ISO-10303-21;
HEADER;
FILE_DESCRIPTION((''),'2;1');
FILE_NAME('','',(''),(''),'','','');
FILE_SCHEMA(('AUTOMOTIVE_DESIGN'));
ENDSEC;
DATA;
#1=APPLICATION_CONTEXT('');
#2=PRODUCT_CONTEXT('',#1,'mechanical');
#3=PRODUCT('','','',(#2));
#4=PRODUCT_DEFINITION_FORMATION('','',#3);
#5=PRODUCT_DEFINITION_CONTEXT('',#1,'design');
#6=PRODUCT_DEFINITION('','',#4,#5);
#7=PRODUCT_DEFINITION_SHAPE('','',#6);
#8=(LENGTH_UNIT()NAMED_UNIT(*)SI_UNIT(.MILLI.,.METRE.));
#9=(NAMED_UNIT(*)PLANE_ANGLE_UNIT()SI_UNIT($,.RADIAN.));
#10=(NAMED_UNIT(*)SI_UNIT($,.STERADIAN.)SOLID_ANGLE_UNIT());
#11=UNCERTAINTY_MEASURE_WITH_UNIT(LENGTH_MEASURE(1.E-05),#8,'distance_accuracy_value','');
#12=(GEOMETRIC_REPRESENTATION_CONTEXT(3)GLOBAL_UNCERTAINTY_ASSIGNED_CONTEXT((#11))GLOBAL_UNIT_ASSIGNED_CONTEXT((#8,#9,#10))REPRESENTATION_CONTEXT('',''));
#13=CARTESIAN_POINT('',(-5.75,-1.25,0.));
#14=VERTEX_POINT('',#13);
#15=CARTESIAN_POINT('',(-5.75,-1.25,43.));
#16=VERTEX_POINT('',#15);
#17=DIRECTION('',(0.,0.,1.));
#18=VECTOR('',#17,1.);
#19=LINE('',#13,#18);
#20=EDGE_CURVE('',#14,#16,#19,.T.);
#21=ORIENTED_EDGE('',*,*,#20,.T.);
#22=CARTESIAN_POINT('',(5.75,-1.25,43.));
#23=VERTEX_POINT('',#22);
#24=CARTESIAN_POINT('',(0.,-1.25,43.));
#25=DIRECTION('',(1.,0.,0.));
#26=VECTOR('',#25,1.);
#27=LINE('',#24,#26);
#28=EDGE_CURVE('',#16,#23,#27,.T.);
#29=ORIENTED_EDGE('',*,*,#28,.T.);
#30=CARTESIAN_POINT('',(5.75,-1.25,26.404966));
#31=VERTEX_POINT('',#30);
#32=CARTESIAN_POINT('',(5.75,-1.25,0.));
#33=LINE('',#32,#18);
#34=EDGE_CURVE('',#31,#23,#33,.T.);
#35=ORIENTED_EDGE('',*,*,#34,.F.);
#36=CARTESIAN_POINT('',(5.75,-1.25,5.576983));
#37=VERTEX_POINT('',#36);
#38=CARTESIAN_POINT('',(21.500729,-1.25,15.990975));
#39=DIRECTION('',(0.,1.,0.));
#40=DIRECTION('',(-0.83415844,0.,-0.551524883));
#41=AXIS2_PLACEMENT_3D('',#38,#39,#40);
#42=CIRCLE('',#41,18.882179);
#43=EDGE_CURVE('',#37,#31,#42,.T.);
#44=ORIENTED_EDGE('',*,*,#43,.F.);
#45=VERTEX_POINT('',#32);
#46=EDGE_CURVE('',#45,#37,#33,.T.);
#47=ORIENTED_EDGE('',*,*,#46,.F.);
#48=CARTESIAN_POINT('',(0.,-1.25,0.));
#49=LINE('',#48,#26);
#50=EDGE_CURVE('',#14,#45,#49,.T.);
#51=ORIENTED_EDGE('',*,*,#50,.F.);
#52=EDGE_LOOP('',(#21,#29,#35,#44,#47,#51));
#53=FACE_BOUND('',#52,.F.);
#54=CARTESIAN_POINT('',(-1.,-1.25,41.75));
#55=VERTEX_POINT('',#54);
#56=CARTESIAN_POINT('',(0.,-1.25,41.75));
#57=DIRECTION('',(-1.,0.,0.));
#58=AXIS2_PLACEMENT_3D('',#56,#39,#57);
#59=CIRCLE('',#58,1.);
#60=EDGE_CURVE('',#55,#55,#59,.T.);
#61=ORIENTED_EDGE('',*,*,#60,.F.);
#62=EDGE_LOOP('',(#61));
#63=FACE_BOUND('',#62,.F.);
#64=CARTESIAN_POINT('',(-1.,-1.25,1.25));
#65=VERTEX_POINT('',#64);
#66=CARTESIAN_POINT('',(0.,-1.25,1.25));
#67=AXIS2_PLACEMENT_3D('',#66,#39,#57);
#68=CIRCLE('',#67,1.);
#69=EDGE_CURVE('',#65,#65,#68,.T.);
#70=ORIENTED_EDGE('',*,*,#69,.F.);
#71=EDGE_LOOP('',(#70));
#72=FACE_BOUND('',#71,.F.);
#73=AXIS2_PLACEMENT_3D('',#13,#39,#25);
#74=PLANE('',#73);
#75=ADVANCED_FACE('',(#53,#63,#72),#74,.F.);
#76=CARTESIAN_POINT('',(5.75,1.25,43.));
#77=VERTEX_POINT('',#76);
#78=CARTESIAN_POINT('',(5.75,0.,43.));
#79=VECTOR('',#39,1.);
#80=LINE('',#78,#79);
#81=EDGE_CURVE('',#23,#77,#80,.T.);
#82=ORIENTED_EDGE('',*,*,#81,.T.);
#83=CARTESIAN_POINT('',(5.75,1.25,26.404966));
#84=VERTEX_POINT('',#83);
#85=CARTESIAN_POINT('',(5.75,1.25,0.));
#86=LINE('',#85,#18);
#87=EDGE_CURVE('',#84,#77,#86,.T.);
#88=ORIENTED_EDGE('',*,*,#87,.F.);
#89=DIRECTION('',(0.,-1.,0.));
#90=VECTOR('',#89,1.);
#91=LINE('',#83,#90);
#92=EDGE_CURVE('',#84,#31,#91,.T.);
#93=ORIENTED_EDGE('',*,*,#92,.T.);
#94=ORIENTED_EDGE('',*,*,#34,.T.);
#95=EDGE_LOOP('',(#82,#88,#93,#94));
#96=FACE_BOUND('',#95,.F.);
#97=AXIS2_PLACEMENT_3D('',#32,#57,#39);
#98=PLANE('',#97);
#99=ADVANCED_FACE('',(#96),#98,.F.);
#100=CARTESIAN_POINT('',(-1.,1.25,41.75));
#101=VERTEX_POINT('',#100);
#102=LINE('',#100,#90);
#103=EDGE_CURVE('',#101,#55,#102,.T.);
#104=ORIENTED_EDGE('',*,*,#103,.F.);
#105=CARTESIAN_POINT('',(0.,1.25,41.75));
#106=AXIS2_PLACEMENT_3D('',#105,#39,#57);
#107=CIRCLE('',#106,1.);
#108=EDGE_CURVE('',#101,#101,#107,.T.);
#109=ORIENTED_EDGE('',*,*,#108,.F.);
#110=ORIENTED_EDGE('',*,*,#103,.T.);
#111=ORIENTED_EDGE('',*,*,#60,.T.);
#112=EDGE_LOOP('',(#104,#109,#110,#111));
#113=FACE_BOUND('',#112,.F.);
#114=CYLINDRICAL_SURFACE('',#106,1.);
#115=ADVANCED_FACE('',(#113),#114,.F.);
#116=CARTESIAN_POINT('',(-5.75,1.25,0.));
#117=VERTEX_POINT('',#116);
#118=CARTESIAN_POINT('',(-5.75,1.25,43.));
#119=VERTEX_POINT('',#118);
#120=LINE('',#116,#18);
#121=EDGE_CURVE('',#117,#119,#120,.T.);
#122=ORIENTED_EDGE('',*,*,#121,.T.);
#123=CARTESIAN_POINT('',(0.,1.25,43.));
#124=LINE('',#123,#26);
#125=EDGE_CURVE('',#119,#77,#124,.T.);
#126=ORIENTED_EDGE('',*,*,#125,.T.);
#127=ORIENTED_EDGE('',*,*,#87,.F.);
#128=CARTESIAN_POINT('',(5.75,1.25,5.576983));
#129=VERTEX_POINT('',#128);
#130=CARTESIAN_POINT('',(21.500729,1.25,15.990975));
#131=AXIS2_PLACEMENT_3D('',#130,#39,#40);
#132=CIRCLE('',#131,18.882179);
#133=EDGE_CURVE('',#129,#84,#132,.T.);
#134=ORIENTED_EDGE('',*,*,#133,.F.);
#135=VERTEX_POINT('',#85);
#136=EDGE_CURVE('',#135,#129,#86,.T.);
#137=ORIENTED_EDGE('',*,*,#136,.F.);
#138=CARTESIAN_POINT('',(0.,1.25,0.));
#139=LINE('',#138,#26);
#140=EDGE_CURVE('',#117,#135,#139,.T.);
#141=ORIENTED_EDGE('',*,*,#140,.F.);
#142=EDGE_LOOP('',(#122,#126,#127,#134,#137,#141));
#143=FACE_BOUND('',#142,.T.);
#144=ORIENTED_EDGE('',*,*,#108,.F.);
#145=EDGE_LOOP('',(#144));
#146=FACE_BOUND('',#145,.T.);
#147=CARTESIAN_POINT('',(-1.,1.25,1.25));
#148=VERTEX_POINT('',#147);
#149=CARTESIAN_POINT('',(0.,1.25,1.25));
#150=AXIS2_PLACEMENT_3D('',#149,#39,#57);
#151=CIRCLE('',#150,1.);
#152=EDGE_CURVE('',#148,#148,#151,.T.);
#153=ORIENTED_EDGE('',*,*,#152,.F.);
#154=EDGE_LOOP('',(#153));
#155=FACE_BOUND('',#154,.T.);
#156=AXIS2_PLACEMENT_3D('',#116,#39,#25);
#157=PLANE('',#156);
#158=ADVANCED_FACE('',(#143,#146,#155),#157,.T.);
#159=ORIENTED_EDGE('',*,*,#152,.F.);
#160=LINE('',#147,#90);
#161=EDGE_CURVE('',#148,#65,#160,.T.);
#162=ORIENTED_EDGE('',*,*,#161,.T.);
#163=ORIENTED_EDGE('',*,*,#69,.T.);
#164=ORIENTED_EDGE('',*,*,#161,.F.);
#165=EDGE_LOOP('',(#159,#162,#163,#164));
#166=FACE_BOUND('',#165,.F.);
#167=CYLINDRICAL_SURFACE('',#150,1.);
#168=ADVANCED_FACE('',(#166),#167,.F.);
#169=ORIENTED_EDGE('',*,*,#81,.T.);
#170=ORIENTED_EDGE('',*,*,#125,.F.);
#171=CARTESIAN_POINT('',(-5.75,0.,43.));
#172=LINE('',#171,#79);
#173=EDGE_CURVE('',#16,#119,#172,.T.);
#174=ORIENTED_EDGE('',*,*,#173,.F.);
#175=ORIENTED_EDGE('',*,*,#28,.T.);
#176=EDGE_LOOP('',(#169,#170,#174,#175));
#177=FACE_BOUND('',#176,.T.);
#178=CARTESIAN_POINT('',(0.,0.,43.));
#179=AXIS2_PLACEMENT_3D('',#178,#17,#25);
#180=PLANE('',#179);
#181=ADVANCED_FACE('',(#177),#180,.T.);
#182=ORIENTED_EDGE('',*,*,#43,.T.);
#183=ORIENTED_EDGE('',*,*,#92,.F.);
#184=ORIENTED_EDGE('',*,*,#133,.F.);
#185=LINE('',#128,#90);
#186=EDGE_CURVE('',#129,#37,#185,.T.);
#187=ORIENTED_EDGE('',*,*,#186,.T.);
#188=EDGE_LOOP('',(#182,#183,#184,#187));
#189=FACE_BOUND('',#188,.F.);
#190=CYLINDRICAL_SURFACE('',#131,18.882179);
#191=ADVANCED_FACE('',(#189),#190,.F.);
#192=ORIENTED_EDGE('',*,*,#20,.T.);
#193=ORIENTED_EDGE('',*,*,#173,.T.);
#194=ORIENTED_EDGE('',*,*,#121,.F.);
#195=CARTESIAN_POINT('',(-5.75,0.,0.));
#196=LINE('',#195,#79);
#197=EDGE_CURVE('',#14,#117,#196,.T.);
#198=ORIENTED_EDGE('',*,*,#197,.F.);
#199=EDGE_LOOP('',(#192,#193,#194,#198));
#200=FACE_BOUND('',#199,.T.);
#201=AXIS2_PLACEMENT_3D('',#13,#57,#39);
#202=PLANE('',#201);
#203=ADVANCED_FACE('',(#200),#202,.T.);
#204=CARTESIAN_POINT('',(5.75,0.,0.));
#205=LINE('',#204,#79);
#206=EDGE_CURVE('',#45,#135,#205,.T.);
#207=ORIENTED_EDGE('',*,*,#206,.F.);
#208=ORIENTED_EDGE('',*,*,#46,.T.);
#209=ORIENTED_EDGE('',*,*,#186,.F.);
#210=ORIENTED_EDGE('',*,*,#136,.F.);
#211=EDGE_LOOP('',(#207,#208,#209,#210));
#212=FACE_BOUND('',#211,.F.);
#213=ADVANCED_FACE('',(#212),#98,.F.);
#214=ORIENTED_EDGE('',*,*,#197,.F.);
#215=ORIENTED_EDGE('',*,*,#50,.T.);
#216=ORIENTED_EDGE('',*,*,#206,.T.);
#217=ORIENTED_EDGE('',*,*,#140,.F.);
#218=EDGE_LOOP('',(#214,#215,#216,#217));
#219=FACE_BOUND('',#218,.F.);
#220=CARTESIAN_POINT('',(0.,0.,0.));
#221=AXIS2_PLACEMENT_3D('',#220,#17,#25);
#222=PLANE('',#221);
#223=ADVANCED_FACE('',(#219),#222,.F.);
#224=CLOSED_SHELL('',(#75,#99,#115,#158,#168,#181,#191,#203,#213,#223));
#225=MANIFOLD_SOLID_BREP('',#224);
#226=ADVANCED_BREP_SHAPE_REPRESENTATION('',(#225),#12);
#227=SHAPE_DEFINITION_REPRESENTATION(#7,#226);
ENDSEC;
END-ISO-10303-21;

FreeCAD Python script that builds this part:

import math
import FreeCAD as App
import Part
import Sketcher

V = App.Vector
Q = App.Units.Quantity


def add_polygon(sketch, points):
    """Adds a closed chain of lines whose ends are joined by coincident constraints."""
    first, n = sketch.GeometryCount, len(points)
    for a, b in zip(points, points[1:] + points[:1]):
        sketch.addGeometry(Part.LineSegment(App.Vector(*a, 0), App.Vector(*b, 0)), False)
    for i in range(n):
        sketch.addConstraint(Sketcher.Constraint("Coincident", first + i, 2, first + (i + 1) % n, 1))

doc = App.newDocument("Part")
params = doc.addObject("Spreadsheet::Sheet", "Params")
for row, (alias, value) in enumerate([
    ("sketch1_width", "11.5 mm"),
    ("sketch1_height", "2.5 mm"),
    ("pad1_length", "43 mm"),
    ("sketch2_diameter", "2 mm"),
    ("pocket1_length", "25 mm"),
    ("pocket2_length", "25 mm"),
], start=1):
    params.set(f"A{row}", alias)
    params.set(f"B{row}", "=" + value)
    params.setAlias(f"B{row}", alias)

body = doc.addObject("PartDesign::Body", "Body")

sketch1 = doc.addObject("Sketcher::SketchObject", "Sketch")
body.addObject(sketch1)
sketch1.AttachmentSupport = (doc.XY_Plane, [""])
sketch1.MapMode = "FlatFace"
add_polygon(sketch1, [(-5.8, 1.2), (-5.8, -1.2), (5.8, -1.2), (5.8, 1.2)])
sketch1.addConstraint(Sketcher.Constraint("Vertical", 0))
sketch1.addConstraint(Sketcher.Constraint("Horizontal", 1))
sketch1.addConstraint(Sketcher.Constraint("Vertical", 2))
sketch1.addConstraint(Sketcher.Constraint("Horizontal", 3))
sketch1.addConstraint(Sketcher.Constraint("Symmetric", 0, 2, 2, 2, -1, 1))
sketch1.addConstraint(Sketcher.Constraint("DistanceX", 1, 1, 1, 2, Q("11.5 mm")))
sketch1.addConstraint(Sketcher.Constraint("DistanceY", 0, 2, 0, 1, Q("2.5 mm")))
sketch1.setExpression("Constraints[9]", "Params.sketch1_width")
sketch1.setExpression("Constraints[10]", "Params.sketch1_height")
pad1 = doc.addObject("PartDesign::Pad", "Pad")
body.addObject(pad1)
pad1.Profile = sketch1
pad1.setExpression("Length", "Params.pad1_length")

sketch2 = doc.addObject("Sketcher::SketchObject", "Sketch001")
body.addObject(sketch2)
sketch2.AttachmentSupport = (doc.XZ_Plane, [""])
sketch2.MapMode = "FlatFace"
sketch2.AttachmentOffset = App.Placement(V(0, 0, -1.25), App.Rotation())
sketch2.addGeometry(Part.Circle(V(0, 1.2, 0), V(0, 0, 1), 1), False)
sketch2.addGeometry(Part.Circle(V(0, 41.8, 0), V(0, 0, 1), 1), False)
sketch2.addConstraint(Sketcher.Constraint("Equal", 0, 1))
sketch2.addConstraint(Sketcher.Constraint("PointOnObject", 0, 3, -2))
sketch2.addConstraint(Sketcher.Constraint("PointOnObject", 1, 3, -2))
sketch2.addConstraint(Sketcher.Constraint("Diameter", 0, Q("2 mm")))
sketch2.addConstraint(Sketcher.Constraint("DistanceY", 0, 3, 1, 3, Q("40.5 mm")))
sketch2.addConstraint(Sketcher.Constraint("DistanceY", -1, 1, 0, 3, Q("1.25 mm")))
sketch2.setExpression("Constraints[3]", "Params.sketch2_diameter")
pocket1 = doc.addObject("PartDesign::Pocket", "Pocket")
body.addObject(pocket1)
pocket1.Profile = sketch2
pocket1.setExpression("Length", "Params.pocket1_length")
pocket1.Reversed = True

sketch3 = doc.addObject("Sketcher::SketchObject", "Sketch002")
body.addObject(sketch3)
sketch3.AttachmentSupport = (doc.XZ_Plane, [""])
sketch3.MapMode = "FlatFace"
sketch3.AttachmentOffset = App.Placement(V(0, 0, -1.25), App.Rotation())
sketch3.addGeometry(Part.LineSegment(V(6, 26, 0), V(6, 6, 0)), False)
sketch3.addGeometry(Part.ArcOfCircle(Part.Circle(V(22, 16, 0), V(0, 0, 1), 19), math.radians(147), math.radians(213)), False)
sketch3.addConstraint(Sketcher.Constraint("Coincident", 0, 1, 1, 1))
sketch3.addConstraint(Sketcher.Constraint("Coincident", 1, 2, 0, 2))
sketch3.addConstraint(Sketcher.Constraint("Vertical", 0))
sketch3.addConstraint(Sketcher.Constraint("DistanceX", -1, 1, 0, 1, Q("5.75 mm")))
sketch3.addConstraint(Sketcher.Constraint("Radius", 1, Q("18.882179 mm")))
sketch3.addConstraint(Sketcher.Constraint("DistanceY", 0, 2, 0, 1, Q("20.827983 mm")))
sketch3.addConstraint(Sketcher.Constraint("DistanceY", -1, 1, 1, 3, Q("15.990975 mm")))
pocket2 = doc.addObject("PartDesign::Pocket", "Pocket001")
body.addObject(pocket2)
pocket2.Profile = sketch3
pocket2.setExpression("Length", "Params.pocket2_length")
pocket2.Reversed = True

doc.recompute()
